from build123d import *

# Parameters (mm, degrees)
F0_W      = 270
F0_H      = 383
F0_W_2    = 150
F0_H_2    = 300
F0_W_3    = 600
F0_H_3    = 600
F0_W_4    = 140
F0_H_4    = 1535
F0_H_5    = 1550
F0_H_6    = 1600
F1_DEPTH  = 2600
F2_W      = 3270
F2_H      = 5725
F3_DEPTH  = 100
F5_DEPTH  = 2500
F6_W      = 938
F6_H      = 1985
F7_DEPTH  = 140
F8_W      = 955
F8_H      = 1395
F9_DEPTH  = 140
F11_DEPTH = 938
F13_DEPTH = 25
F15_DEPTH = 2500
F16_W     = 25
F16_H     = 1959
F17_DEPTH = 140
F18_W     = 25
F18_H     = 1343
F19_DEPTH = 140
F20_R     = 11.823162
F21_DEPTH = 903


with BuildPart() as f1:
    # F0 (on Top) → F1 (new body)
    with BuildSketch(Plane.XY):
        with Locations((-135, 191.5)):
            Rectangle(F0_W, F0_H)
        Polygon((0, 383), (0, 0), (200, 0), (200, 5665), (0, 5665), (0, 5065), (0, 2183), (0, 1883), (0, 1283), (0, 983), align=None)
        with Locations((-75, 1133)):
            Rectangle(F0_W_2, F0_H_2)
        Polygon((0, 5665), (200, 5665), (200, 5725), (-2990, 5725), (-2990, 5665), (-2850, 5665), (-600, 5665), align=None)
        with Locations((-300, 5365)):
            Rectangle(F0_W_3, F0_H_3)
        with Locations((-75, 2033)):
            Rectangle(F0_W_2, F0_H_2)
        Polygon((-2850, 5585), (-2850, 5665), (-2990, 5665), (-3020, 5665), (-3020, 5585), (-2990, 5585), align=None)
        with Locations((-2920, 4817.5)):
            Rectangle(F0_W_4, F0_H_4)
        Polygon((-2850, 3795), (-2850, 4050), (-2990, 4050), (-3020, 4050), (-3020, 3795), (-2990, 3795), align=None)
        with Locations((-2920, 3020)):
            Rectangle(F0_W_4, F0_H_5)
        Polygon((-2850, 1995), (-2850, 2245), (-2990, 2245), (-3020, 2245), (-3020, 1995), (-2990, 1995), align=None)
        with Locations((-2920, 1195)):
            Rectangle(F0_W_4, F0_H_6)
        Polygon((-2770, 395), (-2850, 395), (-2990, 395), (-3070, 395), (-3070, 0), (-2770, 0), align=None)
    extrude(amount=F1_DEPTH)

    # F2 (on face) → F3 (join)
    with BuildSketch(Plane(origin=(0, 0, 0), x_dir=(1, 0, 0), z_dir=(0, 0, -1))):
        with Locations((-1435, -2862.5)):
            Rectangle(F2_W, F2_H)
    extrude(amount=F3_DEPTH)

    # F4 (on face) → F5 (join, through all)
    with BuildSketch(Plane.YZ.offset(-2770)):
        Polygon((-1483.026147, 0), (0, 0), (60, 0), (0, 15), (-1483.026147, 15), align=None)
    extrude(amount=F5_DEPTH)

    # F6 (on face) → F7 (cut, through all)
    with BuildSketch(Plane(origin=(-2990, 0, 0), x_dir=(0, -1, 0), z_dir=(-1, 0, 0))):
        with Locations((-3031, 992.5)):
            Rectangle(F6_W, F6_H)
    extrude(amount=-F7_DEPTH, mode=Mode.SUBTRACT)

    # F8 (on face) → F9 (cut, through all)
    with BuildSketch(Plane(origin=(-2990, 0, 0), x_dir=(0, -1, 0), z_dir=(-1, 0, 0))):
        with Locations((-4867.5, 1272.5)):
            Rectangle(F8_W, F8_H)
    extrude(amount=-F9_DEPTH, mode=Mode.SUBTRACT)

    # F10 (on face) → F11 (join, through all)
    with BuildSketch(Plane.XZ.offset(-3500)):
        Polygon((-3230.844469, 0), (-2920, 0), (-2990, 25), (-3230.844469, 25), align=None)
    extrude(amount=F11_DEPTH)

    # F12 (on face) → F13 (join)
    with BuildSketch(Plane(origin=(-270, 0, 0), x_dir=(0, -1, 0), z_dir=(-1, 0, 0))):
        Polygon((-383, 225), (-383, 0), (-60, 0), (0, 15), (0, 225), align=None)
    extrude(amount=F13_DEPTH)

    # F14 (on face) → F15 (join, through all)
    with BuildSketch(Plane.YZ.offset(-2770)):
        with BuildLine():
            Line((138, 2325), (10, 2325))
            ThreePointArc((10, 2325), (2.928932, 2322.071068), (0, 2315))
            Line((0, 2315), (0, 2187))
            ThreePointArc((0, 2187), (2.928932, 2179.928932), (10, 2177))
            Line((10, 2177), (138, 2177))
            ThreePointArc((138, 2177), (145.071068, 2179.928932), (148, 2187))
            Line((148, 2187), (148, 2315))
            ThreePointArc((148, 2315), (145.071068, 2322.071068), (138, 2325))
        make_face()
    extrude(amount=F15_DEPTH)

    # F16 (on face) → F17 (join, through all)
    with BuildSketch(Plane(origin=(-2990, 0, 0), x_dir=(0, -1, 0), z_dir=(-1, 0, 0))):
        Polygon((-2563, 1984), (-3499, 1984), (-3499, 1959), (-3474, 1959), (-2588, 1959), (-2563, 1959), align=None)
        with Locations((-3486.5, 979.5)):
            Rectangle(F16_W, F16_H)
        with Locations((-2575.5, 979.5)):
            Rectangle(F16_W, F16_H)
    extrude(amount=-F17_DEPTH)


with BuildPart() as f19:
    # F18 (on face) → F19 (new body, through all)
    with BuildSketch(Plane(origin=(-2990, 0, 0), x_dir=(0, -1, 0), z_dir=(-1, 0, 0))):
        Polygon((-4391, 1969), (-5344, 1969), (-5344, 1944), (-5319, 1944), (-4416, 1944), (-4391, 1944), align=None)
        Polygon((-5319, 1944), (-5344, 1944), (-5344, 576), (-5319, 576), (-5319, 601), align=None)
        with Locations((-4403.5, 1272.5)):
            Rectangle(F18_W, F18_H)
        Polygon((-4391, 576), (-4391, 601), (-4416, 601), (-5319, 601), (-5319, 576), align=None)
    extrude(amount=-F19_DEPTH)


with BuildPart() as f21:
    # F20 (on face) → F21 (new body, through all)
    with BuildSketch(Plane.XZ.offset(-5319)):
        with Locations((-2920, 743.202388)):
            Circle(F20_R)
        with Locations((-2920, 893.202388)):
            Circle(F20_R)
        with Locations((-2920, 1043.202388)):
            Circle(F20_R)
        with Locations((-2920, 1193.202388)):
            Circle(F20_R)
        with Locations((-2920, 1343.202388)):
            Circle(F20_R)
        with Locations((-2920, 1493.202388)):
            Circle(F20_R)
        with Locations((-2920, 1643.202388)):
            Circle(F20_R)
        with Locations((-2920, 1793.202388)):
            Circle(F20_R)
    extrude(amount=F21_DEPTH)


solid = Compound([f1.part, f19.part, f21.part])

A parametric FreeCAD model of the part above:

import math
import FreeCAD as App
import Part
import Sketcher
from FreeCAD import Vector


def add_polygon(sketch, points):
    """Adds a closed chain of lines whose ends are joined by coincident constraints."""
    first, n = sketch.GeometryCount, len(points)
    for a, b in zip(points, points[1:] + points[:1]):
        sketch.addGeometry(Part.LineSegment(App.Vector(*a, 0), App.Vector(*b, 0)), False)
    for i in range(n):
        sketch.addConstraint(Sketcher.Constraint("Coincident", first + i, 2, first + (i + 1) % n, 1))

doc = App.newDocument("Part")
body = doc.addObject("PartDesign::Body", "Body")

# Sketch on XY plane
sketch1 = body.newObject("Sketcher::SketchObject", "Sketch")
sketch1.AttachmentSupport = (doc.getObject("XY_Plane"), [""])
sketch1.MapMode = "FlatFace"
add_polygon(sketch1, [(-270, 383), (-270, 0), (200, 0), (200, 5725), (-2990, 5725), (-2990, 5665), (-3020, 5665), (-3020, 5585), (-2990, 5585), (-2990, 4050), (-3020, 4050), (-3020, 3795), (-2990, 3795), (-2990, 2245), (-3020, 2245), (-3020, 1995), (-2990, 1995), (-2990, 395), (-3070, 395), (-3070, 0), (-2770, 0), (-2770, 395), (-2850, 395), (-2850, 5665), (-600, 5665), (-600, 5065), (0, 5065), (0, 2183), (-150, 2183), (-150, 1883), (0, 1883), (0, 1283), (-150, 1283), (-150, 983), (0, 983), (0, 383)])  # lines 0-35
sketch1.addConstraint(Sketcher.Constraint("Vertical", 0))
sketch1.addConstraint(Sketcher.Constraint("Horizontal", 1))
sketch1.addConstraint(Sketcher.Constraint("Vertical", 2))
sketch1.addConstraint(Sketcher.Constraint("Horizontal", 3))
sketch1.addConstraint(Sketcher.Constraint("Vertical", 4))
sketch1.addConstraint(Sketcher.Constraint("Horizontal", 5))
sketch1.addConstraint(Sketcher.Constraint("Vertical", 6))
sketch1.addConstraint(Sketcher.Constraint("Horizontal", 7))
sketch1.addConstraint(Sketcher.Constraint("Vertical", 8))
sketch1.addConstraint(Sketcher.Constraint("Horizontal", 9))
sketch1.addConstraint(Sketcher.Constraint("Vertical", 10))
sketch1.addConstraint(Sketcher.Constraint("Horizontal", 11))
sketch1.addConstraint(Sketcher.Constraint("Vertical", 12))
sketch1.addConstraint(Sketcher.Constraint("Horizontal", 13))
sketch1.addConstraint(Sketcher.Constraint("Vertical", 14))
sketch1.addConstraint(Sketcher.Constraint("Horizontal", 15))
sketch1.addConstraint(Sketcher.Constraint("Vertical", 16))
sketch1.addConstraint(Sketcher.Constraint("Horizontal", 17))
sketch1.addConstraint(Sketcher.Constraint("Vertical", 18))
sketch1.addConstraint(Sketcher.Constraint("Horizontal", 19))
sketch1.addConstraint(Sketcher.Constraint("Vertical", 20))
sketch1.addConstraint(Sketcher.Constraint("Horizontal", 21))
sketch1.addConstraint(Sketcher.Constraint("Vertical", 22))
sketch1.addConstraint(Sketcher.Constraint("Horizontal", 23))
sketch1.addConstraint(Sketcher.Constraint("Vertical", 24))
sketch1.addConstraint(Sketcher.Constraint("Horizontal", 25))
sketch1.addConstraint(Sketcher.Constraint("Vertical", 26))
sketch1.addConstraint(Sketcher.Constraint("Horizontal", 27))
sketch1.addConstraint(Sketcher.Constraint("Vertical", 28))
sketch1.addConstraint(Sketcher.Constraint("Horizontal", 29))
sketch1.addConstraint(Sketcher.Constraint("Vertical", 30))
sketch1.addConstraint(Sketcher.Constraint("Horizontal", 31))
sketch1.addConstraint(Sketcher.Constraint("Vertical", 32))
sketch1.addConstraint(Sketcher.Constraint("Horizontal", 33))
sketch1.addConstraint(Sketcher.Constraint("Vertical", 34))
sketch1.addConstraint(Sketcher.Constraint("Horizontal", 35))
sketch1.addConstraint(Sketcher.Constraint("PointOnObject", 0, 2, -1))
sketch1.addConstraint(Sketcher.Constraint("PointOnObject", 18, 2, -1))
sketch1.addConstraint(Sketcher.Constraint("PointOnObject", 25, 2, -2))
sketch1.addConstraint(Sketcher.Constraint("PointOnObject", 29, 2, -2))
sketch1.addConstraint(Sketcher.Constraint("PointOnObject", 33, 2, -2))
sketch1.addConstraint(Sketcher.Constraint("Horizontal", 17, 2, 20, 2))
sketch1.addConstraint(Sketcher.Constraint("Horizontal", 5, 2, 22, 2))
sketch1.addConstraint(Sketcher.Constraint("Vertical", 4, 2, 7, 2))
sketch1.addConstraint(Sketcher.Constraint("Vertical", 6, 2, 9, 2))
sketch1.addConstraint(Sketcher.Constraint("Vertical", 8, 2, 11, 2))
sketch1.addConstraint(Sketcher.Constraint("Vertical", 10, 2, 13, 2))
sketch1.addConstraint(Sketcher.Constraint("Vertical", 12, 2, 15, 2))
sketch1.addConstraint(Sketcher.Constraint("Vertical", 28, 2, 31, 2))
sketch1.addConstraint(Sketcher.Constraint("Equal", 17, 21))
sketch1.addConstraint(Sketcher.Constraint("Equal", 21, 6))
sketch1.addConstraint(Sketcher.Constraint("Equal", 25, 24))
sketch1.addConstraint(Sketcher.Constraint("Equal", 19, 28))
sketch1.addConstraint(Sketcher.Constraint("Equal", 24, 30))
sketch1.addConstraint(Sketcher.Constraint("Equal", 28, 32))
sketch1.addConstraint(Sketcher.Constraint("Equal", 30, 34))
sketch1.addConstraint(Sketcher.Constraint("DistanceX", 1, 1, 1, 2, 470.0))
sketch1.addConstraint(Sketcher.Constraint("DistanceX", 3, 2, 3, 1, 3190.0))
sketch1.addConstraint(Sketcher.Constraint("DistanceX", 5, 2, 5, 1, 30.0))
sketch1.addConstraint(Sketcher.Constraint("DistanceX", 17, 2, 17, 1, 80.0))
sketch1.addConstraint(Sketcher.Constraint("DistanceX", 19, 1, 19, 2, 300.0))
sketch1.addConstraint(Sketcher.Constraint("DistanceX", 23, 1, 23, 2, 2250.0))
sketch1.addConstraint(Sketcher.Constraint("DistanceX", 25, 1, 25, 2, 600.0))
sketch1.addConstraint(Sketcher.Constraint("DistanceX", 27, 2, 27, 1, 150.0))
sketch1.addConstraint(Sketcher.Constraint("DistanceY", 0, 2, 0, 1, 383.0))
sketch1.addConstraint(Sketcher.Constraint("DistanceY", 2, 1, 2, 2, 5725.0))
sketch1.addConstraint(Sketcher.Constraint("DistanceY", 4, 2, 4, 1, 60.0))
sketch1.addConstraint(Sketcher.Constraint("DistanceY", 8, 2, 8, 1, 1535.0))
sketch1.addConstraint(Sketcher.Constraint("DistanceY", 10, 2, 10, 1, 255.0))
sketch1.addConstraint(Sketcher.Constraint("DistanceY", 12, 2, 12, 1, 1550.0))
sketch1.addConstraint(Sketcher.Constraint("DistanceY", 14, 2, 14, 1, 250.0))
sketch1.addConstraint(Sketcher.Constraint("DistanceY", 16, 2, 16, 1, 1600.0))
pad1 = body.newObject("PartDesign::Pad", "Pad")
pad1.Profile = sketch1
pad1.Length = 2600

# Sketch on XY plane
sketch2 = body.newObject("Sketcher::SketchObject", "Sketch001")
sketch2.AttachmentSupport = (doc.getObject("XY_Plane"), [""])
sketch2.MapMode = "FlatFace"
add_polygon(sketch2, [(-3070, 0), (-3070, 5725), (200, 5725), (200, 0)])  # lines 0-3
sketch2.addConstraint(Sketcher.Constraint("Vertical", 0))
sketch2.addConstraint(Sketcher.Constraint("Horizontal", 1))
sketch2.addConstraint(Sketcher.Constraint("Vertical", 2))
sketch2.addConstraint(Sketcher.Constraint("Horizontal", 3))
sketch2.addConstraint(Sketcher.Constraint("PointOnObject", 2, 2, -1))
sketch2.addConstraint(Sketcher.Constraint("DistanceX", 1, 1, 1, 2, 3270.0))
sketch2.addConstraint(Sketcher.Constraint("DistanceY", 0, 1, 0, 2, 5725.0))
sketch2.addConstraint(Sketcher.Constraint("DistanceX", 0, 2, -1, 1, 3070.0))
pad2 = body.newObject("PartDesign::Pad", "Pad001")
pad2.Profile = sketch2
pad2.Length = 100
pad2.Reversed = True

# Sketch on YZ plane
sketch3 = body.newObject("Sketcher::SketchObject", "Sketch002")
sketch3.AttachmentSupport = (doc.getObject("YZ_Plane"), [""])
sketch3.MapMode = "FlatFace"
sketch3.AttachmentOffset = App.Placement(Vector(0, 0, -2770), App.Rotation())
add_polygon(sketch3, [(-1483, 0), (60, 0), (0, 15), (-1483, 15)])  # lines 0-3
sketch3.addConstraint(Sketcher.Constraint("Horizontal", 0))
sketch3.addConstraint(Sketcher.Constraint("Horizontal", 2))
sketch3.addConstraint(Sketcher.Constraint("Vertical", 3))
sketch3.addConstraint(Sketcher.Constraint("PointOnObject", 0, 2, -1))
sketch3.addConstraint(Sketcher.Constraint("PointOnObject", 1, 2, -2))
sketch3.addConstraint(Sketcher.Constraint("DistanceY", 3, 2, 3, 1, 15.0))
sketch3.addConstraint(Sketcher.Constraint("DistanceX", -1, 1, 0, 2, 60.0))
sketch3.addConstraint(Sketcher.Constraint("DistanceX", 0, 1, 0, 2, 1543.026147))
pad3 = body.newObject("PartDesign::Pad", "Pad002")
pad3.Profile = sketch3
pad3.Length = 2500

# Sketch on YZ plane
sketch4 = body.newObject("Sketcher::SketchObject", "Sketch003")
sketch4.AttachmentSupport = (doc.getObject("YZ_Plane"), [""])
sketch4.MapMode = "FlatFace"
sketch4.AttachmentOffset = App.Placement(Vector(0, 0, -2990), App.Rotation())
add_polygon(sketch4, [(3500, 1985), (3500, 0), (2562, 0), (2562, 1985)])  # lines 0-3
sketch4.addConstraint(Sketcher.Constraint("Vertical", 0))
sketch4.addConstraint(Sketcher.Constraint("Horizontal", 1))
sketch4.addConstraint(Sketcher.Constraint("Vertical", 2))
sketch4.addConstraint(Sketcher.Constraint("Horizontal", 3))
sketch4.addConstraint(Sketcher.Constraint("PointOnObject", 0, 2, -1))
sketch4.addConstraint(Sketcher.Constraint("DistanceX", 1, 2, 1, 1, 938.0))
sketch4.addConstraint(Sketcher.Constraint("DistanceY", 0, 2, 0, 1, 1985.0))
sketch4.addConstraint(Sketcher.Constraint("DistanceX", -1, 1, 0, 2, 3500.0))
pocket1 = body.newObject("PartDesign::Pocket", "Pocket")
pocket1.Profile = sketch4
pocket1.Length = 140
pocket1.Reversed = True

# Sketch on YZ plane
sketch5 = body.newObject("Sketcher::SketchObject", "Sketch004")
sketch5.AttachmentSupport = (doc.getObject("YZ_Plane"), [""])
sketch5.MapMode = "FlatFace"
sketch5.AttachmentOffset = App.Placement(Vector(0, 0, -2990), App.Rotation())
add_polygon(sketch5, [(5345, 1970), (5345, 575), (4390, 575), (4390, 1970)])  # lines 0-3
sketch5.addConstraint(Sketcher.Constraint("Vertical", 0))
sketch5.addConstraint(Sketcher.Constraint("Horizontal", 1))
sketch5.addConstraint(Sketcher.Constraint("Vertical", 2))
sketch5.addConstraint(Sketcher.Constraint("Horizontal", 3))
sketch5.addConstraint(Sketcher.Constraint("DistanceX", 1, 2, 1, 1, 955.0))
sketch5.addConstraint(Sketcher.Constraint("DistanceY", 0, 2, 0, 1, 1395.0))
sketch5.addConstraint(Sketcher.Constraint("DistanceX", -1, 1, 0, 2, 5345.0))
sketch5.addConstraint(Sketcher.Constraint("DistanceY", -1, 1, 0, 2, 575.0))
pocket2 = body.newObject("PartDesign::Pocket", "Pocket001")
pocket2.Profile = sketch5
pocket2.Length = 140
pocket2.Reversed = True

# Sketch on XZ plane
sketch6 = body.newObject("Sketcher::SketchObject", "Sketch005")
sketch6.AttachmentSupport = (doc.getObject("XZ_Plane"), [""])
sketch6.MapMode = "FlatFace"
sketch6.AttachmentOffset = App.Placement(Vector(0, 0, -3500), App.Rotation())
add_polygon(sketch6, [(-3231, 0), (-2920, 0), (-2990, 25), (-3231, 25)])  # lines 0-3
sketch6.addConstraint(Sketcher.Constraint("Horizontal", 0))
sketch6.addConstraint(Sketcher.Constraint("Horizontal", 2))
sketch6.addConstraint(Sketcher.Constraint("Vertical", 3))
sketch6.addConstraint(Sketcher.Constraint("PointOnObject", 0, 2, -1))
sketch6.addConstraint(Sketcher.Constraint("DistanceY", 3, 2, 3, 1, 25.0))
sketch6.addConstraint(Sketcher.Constraint("DistanceX", 0, 2, -1, 1, 2920.0))
sketch6.addConstraint(Sketcher.Constraint("DistanceX", 1, 2, -1, 1, 2990.0))
sketch6.addConstraint(Sketcher.Constraint("DistanceX", 0, 1, 0, 2, 310.844469))
pad4 = body.newObject("PartDesign::Pad", "Pad003")
pad4.Profile = sketch6
pad4.Length = 938

# Sketch on YZ plane
sketch7 = body.newObject("Sketcher::SketchObject", "Sketch006")
sketch7.AttachmentSupport = (doc.getObject("YZ_Plane"), [""])
sketch7.MapMode = "FlatFace"
sketch7.AttachmentOffset = App.Placement(Vector(0, 0, -270), App.Rotation())
add_polygon(sketch7, [(383, 225), (383, 0), (60, 0), (0, 15), (0, 225)])  # lines 0-4
sketch7.addConstraint(Sketcher.Constraint("Vertical", 0))
sketch7.addConstraint(Sketcher.Constraint("Horizontal", 1))
sketch7.addConstraint(Sketcher.Constraint("Vertical", 3))
sketch7.addConstraint(Sketcher.Constraint("Horizontal", 4))
sketch7.addConstraint(Sketcher.Constraint("PointOnObject", 0, 2, -1))
sketch7.addConstraint(Sketcher.Constraint("PointOnObject", 2, 2, -2))
sketch7.addConstraint(Sketcher.Constraint("DistanceX", 1, 2, 1, 1, 323.0))
sketch7.addConstraint(Sketcher.Constraint("DistanceX", 4, 1, 4, 2, 383.0))
sketch7.addConstraint(Sketcher.Constraint("DistanceY", 0, 2, 0, 1, 225.0))
sketch7.addConstraint(Sketcher.Constraint("DistanceY", 3, 1, 3, 2, 210.0))
pad5 = body.newObject("PartDesign::Pad", "Pad004")
pad5.Profile = sketch7
pad5.Length = 25
pad5.Reversed = True

# Sketch on YZ plane
sketch8 = body.newObject("Sketcher::SketchObject", "Sketch007")
sketch8.AttachmentSupport = (doc.getObject("YZ_Plane"), [""])
sketch8.MapMode = "FlatFace"
sketch8.AttachmentOffset = App.Placement(Vector(0, 0, -2770), App.Rotation())
sketch8.addGeometry(Part.LineSegment(Vector(138, 2325, 0), Vector(10, 2325, 0)), False)
sketch8.addGeometry(Part.ArcOfCircle(Part.Circle(Vector(10, 2315, 0), Vector(0, 0, 1), 10), math.radians(90), math.radians(180)), False)
sketch8.addGeometry(Part.LineSegment(Vector(0, 2315, 0), Vector(0, 2187, 0)), False)
sketch8.addGeometry(Part.ArcOfCircle(Part.Circle(Vector(10, 2187, 0), Vector(0, 0, 1), 10), math.radians(180), math.radians(270)), False)
sketch8.addGeometry(Part.LineSegment(Vector(10, 2177, 0), Vector(138, 2177, 0)), False)
sketch8.addGeometry(Part.ArcOfCircle(Part.Circle(Vector(138, 2187, 0), Vector(0, 0, 1), 10), math.radians(-90), math.radians(0)), False)
sketch8.addGeometry(Part.LineSegment(Vector(148, 2187, 0), Vector(148, 2315, 0)), False)
sketch8.addGeometry(Part.ArcOfCircle(Part.Circle(Vector(138, 2315, 0), Vector(0, 0, 1), 10), math.radians(0), math.radians(90)), False)
sketch8.addConstraint(Sketcher.Constraint("Tangent", 0, 2, 1, 1))
sketch8.addConstraint(Sketcher.Constraint("Tangent", 1, 2, 2, 1))
sketch8.addConstraint(Sketcher.Constraint("Tangent", 2, 2, 3, 1))
sketch8.addConstraint(Sketcher.Constraint("Tangent", 3, 2, 4, 1))
sketch8.addConstraint(Sketcher.Constraint("Tangent", 4, 2, 5, 1))
sketch8.addConstraint(Sketcher.Constraint("Tangent", 5, 2, 6, 1))
sketch8.addConstraint(Sketcher.Constraint("Tangent", 6, 2, 7, 1))
sketch8.addConstraint(Sketcher.Constraint("Tangent", 7, 2, 0, 1))
sketch8.addConstraint(Sketcher.Constraint("Horizontal", 0))
sketch8.addConstraint(Sketcher.Constraint("Vertical", 2))
sketch8.addConstraint(Sketcher.Constraint("Horizontal", 4))
sketch8.addConstraint(Sketcher.Constraint("Vertical", 6))
sketch8.addConstraint(Sketcher.Constraint("Equal", 1, 3))
sketch8.addConstraint(Sketcher.Constraint("Equal", 3, 5))
sketch8.addConstraint(Sketcher.Constraint("Equal", 5, 7))
sketch8.addConstraint(Sketcher.Constraint("PointOnObject", 1, 2, -2))
sketch8.addConstraint(Sketcher.Constraint("Equal", 4, 2))
sketch8.addConstraint(Sketcher.Constraint("Radius", 1, 9.999999))
sketch8.addConstraint(Sketcher.Constraint("DistanceX", 0, 2, 0, 1, 128.0))
sketch8.addConstraint(Sketcher.Constraint("DistanceY", -1, 1, 1, 3, 2315.000001))
pad6 = body.newObject("PartDesign::Pad", "Pad005")
pad6.Profile = sketch8
pad6.Type = "UpToLast"

# Sketch on YZ plane
sketch9 = body.newObject("Sketcher::SketchObject", "Sketch008")
sketch9.AttachmentSupport = (doc.getObject("YZ_Plane"), [""])
sketch9.MapMode = "FlatFace"
sketch9.AttachmentOffset = App.Placement(Vector(0, 0, -2990), App.Rotation())
add_polygon(sketch9, [(2563, 1984), (3499, 1984), (3499, 0), (3474, 0), (3474, 1959), (2588, 1959), (2588, 0), (2563, 0)])  # lines 0-7
sketch9.addConstraint(Sketcher.Constraint("Horizontal", 0))
sketch9.addConstraint(Sketcher.Constraint("Vertical", 1))
sketch9.addConstraint(Sketcher.Constraint("Horizontal", 2))
sketch9.addConstraint(Sketcher.Constraint("Vertical", 3))
sketch9.addConstraint(Sketcher.Constraint("Horizontal", 4))
sketch9.addConstraint(Sketcher.Constraint("Vertical", 5))
sketch9.addConstraint(Sketcher.Constraint("Horizontal", 6))
sketch9.addConstraint(Sketcher.Constraint("Vertical", 7))
sketch9.addConstraint(Sketcher.Constraint("PointOnObject", 1, 2, -1))
sketch9.addConstraint(Sketcher.Constraint("PointOnObject", 5, 2, -1))
sketch9.addConstraint(Sketcher.Constraint("Equal", 2, 6))
sketch9.addConstraint(Sketcher.Constraint("DistanceX", 0, 1, 0, 2, 936.0))
sketch9.addConstraint(Sketcher.Constraint("DistanceX", 2, 2, 2, 1, 25.0))
sketch9.addConstraint(Sketcher.Constraint("DistanceY", 1, 2, 1, 1, 1984.0))
sketch9.addConstraint(Sketcher.Constraint("DistanceY", 3, 1, 3, 2, 1959.0))
sketch9.addConstraint(Sketcher.Constraint("DistanceX", -1, 1, 0, 2, 3499.0))
pad7 = body.newObject("PartDesign::Pad", "Pad006")
pad7.Profile = sketch9
pad7.Length = 140
body2 = doc.addObject("PartDesign::Body", "Body001")

# Sketch on YZ plane
sketch10 = body2.newObject("Sketcher::SketchObject", "Sketch009")
sketch10.AttachmentSupport = (doc.getObject("YZ_Plane001"), [""])
sketch10.MapMode = "FlatFace"
sketch10.AttachmentOffset = App.Placement(Vector(0, 0, -2990), App.Rotation())
add_polygon(sketch10, [(4391, 1969), (5344, 1969), (5344, 576), (4391, 576)])  # lines 0-3
add_polygon(sketch10, [(5319, 601), (5319, 1944), (4416, 1944), (4416, 601)])  # lines 4-7
sketch10.addConstraint(Sketcher.Constraint("Horizontal", 0))
sketch10.addConstraint(Sketcher.Constraint("Vertical", 1))
sketch10.addConstraint(Sketcher.Constraint("Horizontal", 2))
sketch10.addConstraint(Sketcher.Constraint("Vertical", 3))
sketch10.addConstraint(Sketcher.Constraint("Vertical", 4))
sketch10.addConstraint(Sketcher.Constraint("Horizontal", 5))
sketch10.addConstraint(Sketcher.Constraint("Vertical", 6))
sketch10.addConstraint(Sketcher.Constraint("Horizontal", 7))
sketch10.addConstraint(Sketcher.Constraint("DistanceX", 0, 1, 0, 2, 953.0))
sketch10.addConstraint(Sketcher.Constraint("DistanceX", 5, 2, 5, 1, 903.0))
sketch10.addConstraint(Sketcher.Constraint("DistanceY", 1, 2, 1, 1, 1393.0))
sketch10.addConstraint(Sketcher.Constraint("DistanceY", 4, 1, 4, 2, 1343.0))
sketch10.addConstraint(Sketcher.Constraint("DistanceX", -1, 1, 0, 2, 5344.0))
sketch10.addConstraint(Sketcher.Constraint("DistanceY", -1, 1, 0, 2, 1969.0))
sketch10.addConstraint(Sketcher.Constraint("DistanceX", -1, 1, 4, 2, 5319.0))
sketch10.addConstraint(Sketcher.Constraint("DistanceY", -1, 1, 4, 2, 1944.0))
pad8 = body2.newObject("PartDesign::Pad", "Pad007")
pad8.Profile = sketch10
pad8.Length = 140
body3 = doc.addObject("PartDesign::Body", "Body002")
body3.AllowCompound = True

# Sketch on XZ plane
sketch11 = body3.newObject("Sketcher::SketchObject", "Sketch010")
sketch11.AttachmentSupport = (doc.getObject("XZ_Plane002"), [""])
sketch11.MapMode = "FlatFace"
sketch11.AttachmentOffset = App.Placement(Vector(0, 0, -5319), App.Rotation())
sketch11.addGeometry(Part.Circle(Vector(-2920, 743, 0), Vector(0, 0, 1), 12), False)
sketch11.addGeometry(Part.Circle(Vector(-2920, 893, 0), Vector(0, 0, 1), 12), False)
sketch11.addGeometry(Part.Circle(Vector(-2920, 1043, 0), Vector(0, 0, 1), 12), False)
sketch11.addGeometry(Part.Circle(Vector(-2920, 1193, 0), Vector(0, 0, 1), 12), False)
sketch11.addGeometry(Part.Circle(Vector(-2920, 1343, 0), Vector(0, 0, 1), 12), False)
sketch11.addGeometry(Part.Circle(Vector(-2920, 1493, 0), Vector(0, 0, 1), 12), False)
sketch11.addGeometry(Part.Circle(Vector(-2920, 1643, 0), Vector(0, 0, 1), 12), False)
sketch11.addGeometry(Part.Circle(Vector(-2920, 1793, 0), Vector(0, 0, 1), 12), False)
sketch11.addConstraint(Sketcher.Constraint("Equal", 0, 1))
sketch11.addConstraint(Sketcher.Constraint("Equal", 1, 2))
sketch11.addConstraint(Sketcher.Constraint("Equal", 2, 3))
sketch11.addConstraint(Sketcher.Constraint("Equal", 3, 4))
sketch11.addConstraint(Sketcher.Constraint("Equal", 4, 5))
sketch11.addConstraint(Sketcher.Constraint("Equal", 5, 6))
sketch11.addConstraint(Sketcher.Constraint("Equal", 6, 7))
sketch11.addConstraint(Sketcher.Constraint("Vertical", 0, 3, 1, 3))
sketch11.addConstraint(Sketcher.Constraint("Vertical", 1, 3, 2, 3))
sketch11.addConstraint(Sketcher.Constraint("Vertical", 2, 3, 3, 3))
sketch11.addConstraint(Sketcher.Constraint("Vertical", 3, 3, 4, 3))
sketch11.addConstraint(Sketcher.Constraint("Vertical", 4, 3, 5, 3))
sketch11.addConstraint(Sketcher.Constraint("Vertical", 5, 3, 6, 3))
sketch11.addConstraint(Sketcher.Constraint("Vertical", 6, 3, 7, 3))
sketch11.addConstraint(Sketcher.Constraint("DistanceX", 0, 3, -1, 1, 2920.0))
sketch11.addConstraint(Sketcher.Constraint("DistanceY", 0, 3, 1, 3, 150.0))
sketch11.addConstraint(Sketcher.Constraint("DistanceY", 1, 3, 2, 3, 150.0))
sketch11.addConstraint(Sketcher.Constraint("DistanceY", 2, 3, 3, 3, 150.0))
sketch11.addConstraint(Sketcher.Constraint("DistanceY", 3, 3, 4, 3, 150.0))
sketch11.addConstraint(Sketcher.Constraint("DistanceY", 4, 3, 5, 3, 150.0))
sketch11.addConstraint(Sketcher.Constraint("DistanceY", 5, 3, 6, 3, 150.0))
sketch11.addConstraint(Sketcher.Constraint("DistanceY", 6, 3, 7, 3, 150.0))
sketch11.addConstraint(Sketcher.Constraint("Diameter", 0, 23.646324))
sketch11.addConstraint(Sketcher.Constraint("DistanceY", -1, 1, 0, 3, 743.202388))
pad9 = body3.newObject("PartDesign::Pad", "Pad008")
pad9.Profile = sketch11
pad9.Length = 903

doc.recompute()
